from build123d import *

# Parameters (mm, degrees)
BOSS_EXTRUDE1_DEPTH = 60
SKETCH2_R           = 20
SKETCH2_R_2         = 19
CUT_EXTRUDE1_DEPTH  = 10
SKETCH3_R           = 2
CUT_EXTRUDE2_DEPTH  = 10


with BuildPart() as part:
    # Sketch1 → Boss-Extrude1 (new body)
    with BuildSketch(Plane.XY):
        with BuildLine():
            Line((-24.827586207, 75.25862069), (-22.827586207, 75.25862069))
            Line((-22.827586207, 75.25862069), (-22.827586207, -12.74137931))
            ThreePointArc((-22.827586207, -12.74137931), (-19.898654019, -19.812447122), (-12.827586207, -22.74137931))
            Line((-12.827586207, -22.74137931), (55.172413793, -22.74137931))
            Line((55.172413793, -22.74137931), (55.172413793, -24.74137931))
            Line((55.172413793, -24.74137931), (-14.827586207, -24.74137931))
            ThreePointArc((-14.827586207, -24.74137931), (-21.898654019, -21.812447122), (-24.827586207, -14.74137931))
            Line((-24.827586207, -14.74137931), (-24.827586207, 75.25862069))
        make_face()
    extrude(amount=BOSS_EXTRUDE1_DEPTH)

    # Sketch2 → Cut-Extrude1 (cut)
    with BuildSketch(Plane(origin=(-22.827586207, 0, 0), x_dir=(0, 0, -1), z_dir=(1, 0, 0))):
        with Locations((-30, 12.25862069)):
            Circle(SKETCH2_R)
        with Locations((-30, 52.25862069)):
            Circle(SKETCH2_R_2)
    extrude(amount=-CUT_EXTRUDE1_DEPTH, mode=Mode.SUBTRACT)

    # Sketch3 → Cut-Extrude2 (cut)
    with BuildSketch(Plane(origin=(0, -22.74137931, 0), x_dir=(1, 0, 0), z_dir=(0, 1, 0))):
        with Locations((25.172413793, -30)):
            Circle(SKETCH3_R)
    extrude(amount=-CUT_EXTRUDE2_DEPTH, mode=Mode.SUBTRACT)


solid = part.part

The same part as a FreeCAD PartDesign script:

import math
import FreeCAD as App
import Part
import Sketcher
from FreeCAD import Vector

doc = App.newDocument("Part")
params = doc.addObject("Spreadsheet::Sheet", "Params")
for row, (alias, value) in enumerate([
    ("sketch1_radius", "10 mm"),
    ("sketch1_width", "2 mm"),
    ("sketch1_width2", "70 mm"),
    ("sketch1_height", "90 mm"),
    ("pad1_length", "60 mm"),
    ("sketch2_diameter", "40 mm"),
    ("sketch2_diameter2", "38 mm"),
    ("pocket1_length", "10 mm"),
    ("sketch3_diameter", "4 mm"),
    ("pocket2_length", "10 mm"),
], start=1):
    params.set(f"A{row}", alias)
    params.set(f"B{row}", "=" + value)
    params.setAlias(f"B{row}", alias)

body = doc.addObject("PartDesign::Body", "Body")

# Sketch on XY plane
sketch1 = doc.addObject("Sketcher::SketchObject", "Sketch")
body.addObject(sketch1)
sketch1.AttachmentSupport = (doc.XY_Plane, [""])
sketch1.MapMode = "FlatFace"
sketch1.addGeometry(Part.LineSegment(Vector(-22.8, 75.3, 0), Vector(-24.8, 75.3, 0)), False)
sketch1.addGeometry(Part.LineSegment(Vector(-24.8, 75.3, 0), Vector(-24.8, -14.7, 0)), False)
sketch1.addGeometry(Part.ArcOfCircle(Part.Circle(Vector(-14.8, -14.7, 0), Vector(0, 0, 1), 10), math.radians(180), math.radians(270)), False)
sketch1.addGeometry(Part.LineSegment(Vector(-14.8, -24.7, 0), Vector(55.2, -24.7, 0)), False)
sketch1.addGeometry(Part.LineSegment(Vector(55.2, -24.7, 0), Vector(55.2, -22.7, 0)), False)
sketch1.addGeometry(Part.LineSegment(Vector(55.2, -22.7, 0), Vector(-12.8, -22.7, 0)), False)
sketch1.addGeometry(Part.ArcOfCircle(Part.Circle(Vector(-12.8, -12.7, 0), Vector(0, 0, 1), 10), math.radians(180), math.radians(270)), False)
sketch1.addGeometry(Part.LineSegment(Vector(-22.8, -12.7, 0), Vector(-22.8, 75.3, 0)), False)
sketch1.addConstraint(Sketcher.Constraint("Coincident", 0, 2, 1, 1))
sketch1.addConstraint(Sketcher.Constraint("Tangent", 1, 2, 2, 1))
sketch1.addConstraint(Sketcher.Constraint("Tangent", 2, 2, 3, 1))
sketch1.addConstraint(Sketcher.Constraint("Coincident", 3, 2, 4, 1))
sketch1.addConstraint(Sketcher.Constraint("Coincident", 4, 2, 5, 1))
sketch1.addConstraint(Sketcher.Constraint("Tangent", 5, 2, 6, 2))
sketch1.addConstraint(Sketcher.Constraint("Tangent", 6, 1, 7, 1))
sketch1.addConstraint(Sketcher.Constraint("Coincident", 7, 2, 0, 1))
sketch1.addConstraint(Sketcher.Constraint("Horizontal", 0))
sketch1.addConstraint(Sketcher.Constraint("Vertical", 1))
sketch1.addConstraint(Sketcher.Constraint("Horizontal", 3))
sketch1.addConstraint(Sketcher.Constraint("Vertical", 4))
sketch1.addConstraint(Sketcher.Constraint("Horizontal", 5))
sketch1.addConstraint(Sketcher.Constraint("Vertical", 7))
sketch1.addConstraint(Sketcher.Constraint("Equal", 2, 6))
sketch1.addConstraint(Sketcher.Constraint("Equal", 0, 4))
sketch1.addConstraint(Sketcher.Constraint("Radius", 2, 10.0))
sketch1.addConstraint(Sketcher.Constraint("DistanceX", 0, 2, 0, 1, 2.0))
sketch1.addConstraint(Sketcher.Constraint("DistanceX", 3, 1, 3, 2, 70.0))
sketch1.addConstraint(Sketcher.Constraint("DistanceY", 1, 2, 1, 1, 90.0))
sketch1.addConstraint(Sketcher.Constraint("DistanceY", 2, 3, -1, 1, 14.741379))
sketch1.addConstraint(Sketcher.Constraint("DistanceX", 2, 3, -1, 1, 14.827586))
sketch1.setExpression("Constraints[16]", "Params.sketch1_radius")
sketch1.setExpression("Constraints[17]", "Params.sketch1_width")
sketch1.setExpression("Constraints[18]", "Params.sketch1_width2")
sketch1.setExpression("Constraints[19]", "Params.sketch1_height")
pad1 = doc.addObject("PartDesign::Pad", "Pad")
body.addObject(pad1)
pad1.Profile = sketch1
pad1.setExpression("Length", "Params.pad1_length")

# Sketch on YZ plane
sketch2 = doc.addObject("Sketcher::SketchObject", "Sketch001")
body.addObject(sketch2)
sketch2.AttachmentSupport = (doc.YZ_Plane, [""])
sketch2.MapMode = "FlatFace"
sketch2.AttachmentOffset = App.Placement(Vector(0, 0, -22.827586), App.Rotation())
sketch2.addGeometry(Part.Circle(Vector(12, 30, 0), Vector(0, 0, 1), 20), False)
sketch2.addGeometry(Part.Circle(Vector(52, 30, 0), Vector(0, 0, 1), 19), False)
sketch2.addConstraint(Sketcher.Constraint("Horizontal", 0, 3, 1, 3))
sketch2.addConstraint(Sketcher.Constraint("Diameter", 0, 40.0))
sketch2.addConstraint(Sketcher.Constraint("Diameter", 1, 38.0))
sketch2.addConstraint(Sketcher.Constraint("DistanceY", -1, 1, 0, 3, 30.0))
sketch2.addConstraint(Sketcher.Constraint("DistanceX", 0, 3, 1, 3, 40.0))
sketch2.addConstraint(Sketcher.Constraint("DistanceX", -1, 1, 0, 3, 12.258621))
sketch2.setExpression("Constraints[1]", "Params.sketch2_diameter")
sketch2.setExpression("Constraints[2]", "Params.sketch2_diameter2")
pocket1 = doc.addObject("PartDesign::Pocket", "Pocket")
body.addObject(pocket1)
pocket1.Profile = sketch2
pocket1.setExpression("Length", "Params.pocket1_length")

# Sketch on XZ plane
sketch3 = doc.addObject("Sketcher::SketchObject", "Sketch002")
body.addObject(sketch3)
sketch3.AttachmentSupport = (doc.XZ_Plane, [""])
sketch3.MapMode = "FlatFace"
sketch3.AttachmentOffset = App.Placement(Vector(0, 0, 22.741379), App.Rotation())
sketch3.addGeometry(Part.Circle(Vector(25.2, 30, 0), Vector(0, 0, 1), 2), False)
sketch3.addConstraint(Sketcher.Constraint("Diameter", 0, 4.0))
sketch3.addConstraint(Sketcher.Constraint("DistanceY", -1, 1, 0, 3, 30.0))
sketch3.addConstraint(Sketcher.Constraint("DistanceX", -1, 1, 0, 3, 25.172414))
sketch3.setExpression("Constraints[0]", "Params.sketch3_diameter")
pocket2 = doc.addObject("PartDesign::Pocket", "Pocket001")
body.addObject(pocket2)
pocket2.Profile = sketch3
pocket2.setExpression("Length", "Params.pocket2_length")
pocket2.Reversed = True

doc.recompute()
